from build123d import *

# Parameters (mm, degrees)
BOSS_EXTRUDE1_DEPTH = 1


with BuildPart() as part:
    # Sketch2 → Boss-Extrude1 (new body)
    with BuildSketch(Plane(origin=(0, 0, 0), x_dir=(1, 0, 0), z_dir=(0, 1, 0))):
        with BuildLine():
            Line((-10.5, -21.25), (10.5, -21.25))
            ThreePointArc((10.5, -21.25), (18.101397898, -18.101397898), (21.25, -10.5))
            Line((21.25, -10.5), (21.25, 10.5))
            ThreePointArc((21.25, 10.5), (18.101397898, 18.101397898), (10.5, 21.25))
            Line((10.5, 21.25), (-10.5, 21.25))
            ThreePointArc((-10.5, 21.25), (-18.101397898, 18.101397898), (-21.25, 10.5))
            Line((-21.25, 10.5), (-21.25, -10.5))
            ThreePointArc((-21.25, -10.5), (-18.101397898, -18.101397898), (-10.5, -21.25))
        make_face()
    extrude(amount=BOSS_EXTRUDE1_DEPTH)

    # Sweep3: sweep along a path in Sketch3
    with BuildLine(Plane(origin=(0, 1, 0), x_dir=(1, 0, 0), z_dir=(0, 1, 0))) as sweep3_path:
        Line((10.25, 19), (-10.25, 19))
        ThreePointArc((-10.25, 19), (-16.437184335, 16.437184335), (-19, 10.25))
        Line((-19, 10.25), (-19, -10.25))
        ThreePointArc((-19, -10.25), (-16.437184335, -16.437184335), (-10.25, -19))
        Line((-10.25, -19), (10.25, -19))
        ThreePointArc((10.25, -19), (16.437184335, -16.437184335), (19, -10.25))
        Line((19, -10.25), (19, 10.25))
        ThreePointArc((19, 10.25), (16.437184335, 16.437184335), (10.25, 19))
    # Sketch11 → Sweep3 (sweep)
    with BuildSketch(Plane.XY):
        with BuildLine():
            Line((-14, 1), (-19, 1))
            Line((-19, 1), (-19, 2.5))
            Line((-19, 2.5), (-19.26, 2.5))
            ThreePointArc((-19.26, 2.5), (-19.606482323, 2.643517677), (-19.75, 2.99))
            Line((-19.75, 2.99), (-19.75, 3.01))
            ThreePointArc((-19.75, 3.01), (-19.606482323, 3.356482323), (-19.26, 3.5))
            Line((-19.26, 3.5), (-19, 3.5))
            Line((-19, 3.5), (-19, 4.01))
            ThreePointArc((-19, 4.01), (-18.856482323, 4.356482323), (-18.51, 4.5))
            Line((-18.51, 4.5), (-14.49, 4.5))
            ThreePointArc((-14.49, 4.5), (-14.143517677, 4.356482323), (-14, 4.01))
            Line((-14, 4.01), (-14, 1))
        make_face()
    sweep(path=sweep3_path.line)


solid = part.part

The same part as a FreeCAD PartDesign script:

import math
import FreeCAD as App
import Part
import Sketcher

V = App.Vector
Q = App.Units.Quantity

doc = App.newDocument("Part")
body = doc.addObject("PartDesign::Body", "Body")

# Sketch on XZ plane
sketch1 = doc.addObject("Sketcher::SketchObject", "Sketch")
body.addObject(sketch1)
sketch1.AttachmentSupport = (doc.XZ_Plane, [""])
sketch1.MapMode = "FlatFace"
sketch1.addGeometry([
    Part.LineSegment(V(-10, 21, 0), V(10, 21, 0)),  # 0
    Part.ArcOfCircle(Part.Circle(V(11, 11, 0), V(0, 0, 1), 11), math.radians(0), math.radians(90)),  # 1
    Part.LineSegment(V(21, 10, 0), V(21, -10, 0)),  # 2
    Part.ArcOfCircle(Part.Circle(V(11, -11, 0), V(0, 0, 1), 11), math.radians(-90), math.radians(0)),  # 3
    Part.LineSegment(V(10, -21, 0), V(-10, -21, 0)),  # 4
    Part.ArcOfCircle(Part.Circle(V(-11, -11, 0), V(0, 0, 1), 11), math.radians(180), math.radians(270)),  # 5
    Part.LineSegment(V(-21, -10, 0), V(-21, 10, 0)),  # 6
    Part.ArcOfCircle(Part.Circle(V(-11, 11, 0), V(0, 0, 1), 11), math.radians(90), math.radians(180)),  # 7
], False)
sketch1.addConstraint([
    Sketcher.Constraint("Tangent", 0, 2, 1, 2),
    Sketcher.Constraint("Tangent", 1, 1, 2, 1),
    Sketcher.Constraint("Tangent", 2, 2, 3, 2),
    Sketcher.Constraint("Tangent", 3, 1, 4, 1),
    Sketcher.Constraint("Tangent", 4, 2, 5, 2),
    Sketcher.Constraint("Tangent", 5, 1, 6, 1),
    Sketcher.Constraint("Tangent", 6, 2, 7, 2),
    Sketcher.Constraint("Tangent", 7, 1, 0, 1),
    Sketcher.Constraint("Horizontal", 0),
    Sketcher.Constraint("Vertical", 2),
    Sketcher.Constraint("Horizontal", 4),
    Sketcher.Constraint("Vertical", 6),
    Sketcher.Constraint("Equal", 1, 3),
    Sketcher.Constraint("Equal", 3, 5),
    Sketcher.Constraint("Equal", 5, 7),
    Sketcher.Constraint("Symmetric", 1, 3, 5, 3, -1, 1),
    Sketcher.Constraint("Equal", 4, 2),
    Sketcher.Constraint("DistanceX", 0, 1, 0, 2, Q("21 mm")),
    Sketcher.Constraint("Radius", 1, Q("10.75 mm")),
])
pad1 = doc.addObject("PartDesign::Pad", "Pad")
body.addObject(pad1)
pad1.Profile = sketch1
pad1.Length = 1
pad1.Reversed = True

# Sketch on XY plane
sketch2 = doc.addObject("Sketcher::SketchObject", "Sketch001")
body.addObject(sketch2)
sketch2.AttachmentSupport = (doc.XY_Plane, [""])
sketch2.MapMode = "FlatFace"
sketch2.addGeometry([
    Part.LineSegment(V(-19, 1, 0), V(-14, 1, 0)),  # 0
    Part.LineSegment(V(-14, 1, 0), V(-14, 4.01, 0)),  # 1
    Part.ArcOfCircle(Part.Circle(V(-14.49, 4.01, 0), V(0, 0, 1), 0.49), math.radians(0), math.radians(90)),  # 2
    Part.LineSegment(V(-14.49, 4.5, 0), V(-18.51, 4.5, 0)),  # 3
    Part.ArcOfCircle(Part.Circle(V(-18.51, 4.01, 0), V(0, 0, 1), 0.49), math.radians(90), math.radians(180)),  # 4
    Part.LineSegment(V(-19, 4.01, 0), V(-19, 3.5, 0)),  # 5
    Part.LineSegment(V(-19, 3.5, 0), V(-19.26, 3.5, 0)),  # 6
    Part.ArcOfCircle(Part.Circle(V(-19.26, 3.01, 0), V(0, 0, 1), 0.49), math.radians(90), math.radians(180)),  # 7
    Part.LineSegment(V(-19.75, 3.01, 0), V(-19.75, 2.99, 0)),  # 8
    Part.ArcOfCircle(Part.Circle(V(-19.26, 2.99, 0), V(0, 0, 1), 0.49), math.radians(180), math.radians(270)),  # 9
    Part.LineSegment(V(-19.26, 2.5, 0), V(-19, 2.5, 0)),  # 10
    Part.LineSegment(V(-19, 2.5, 0), V(-19, 1, 0)),  # 11
], False)
sketch2.addConstraint([
    Sketcher.Constraint("Coincident", 0, 2, 1, 1),
    Sketcher.Constraint("Tangent", 1, 2, 2, 1),
    Sketcher.Constraint("Tangent", 2, 2, 3, 1),
    Sketcher.Constraint("Tangent", 3, 2, 4, 1),
    Sketcher.Constraint("Tangent", 4, 2, 5, 1),
    Sketcher.Constraint("Coincident", 5, 2, 6, 1),
    Sketcher.Constraint("Tangent", 6, 2, 7, 1),
    Sketcher.Constraint("Tangent", 7, 2, 8, 1),
    Sketcher.Constraint("Tangent", 8, 2, 9, 1),
    Sketcher.Constraint("Tangent", 9, 2, 10, 1),
    Sketcher.Constraint("Coincident", 10, 2, 11, 1),
    Sketcher.Constraint("Coincident", 11, 2, 0, 1),
    Sketcher.Constraint("Horizontal", 0),
    Sketcher.Constraint("Vertical", 1),
    Sketcher.Constraint("Horizontal", 3),
    Sketcher.Constraint("Vertical", 5),
    Sketcher.Constraint("Horizontal", 6),
    Sketcher.Constraint("Vertical", 8),
    Sketcher.Constraint("Horizontal", 10),
    Sketcher.Constraint("Vertical", 11),
    Sketcher.Constraint("Equal", 2, 4),
    Sketcher.Constraint("Equal", 4, 7),
    Sketcher.Constraint("Equal", 7, 9),
    Sketcher.Constraint("Vertical", 5, 2, 10, 2),
    Sketcher.Constraint("DistanceX", 0, 1, 0, 2, Q("5 mm")),
    Sketcher.Constraint("Radius", 2, Q("0.49 mm")),
    Sketcher.Constraint("DistanceY", 11, 2, 11, 1, Q("1.5 mm")),
    Sketcher.Constraint("DistanceX", 0, 2, -1, 1, Q("14 mm")),
    Sketcher.Constraint("DistanceY", -1, 1, 0, 2, Q("1 mm")),
    Sketcher.Constraint("DistanceY", 7, 3, 4, 3, Q("1 mm")),
    Sketcher.Constraint("DistanceY", 9, 2, 6, 2, Q("1 mm")),
    Sketcher.Constraint("DistanceX", 6, 2, 6, 1, Q("0.26 mm")),
])

# Sketch on XZ plane
sketch3 = doc.addObject("Sketcher::SketchObject", "Sketch002")
body.addObject(sketch3)
sketch3.AttachmentSupport = (doc.XZ_Plane, [""])
sketch3.MapMode = "FlatFace"
sketch3.AttachmentOffset = App.Placement(V(0, 0, -1), App.Rotation())
sketch3.addGeometry([
    Part.LineSegment(V(10, -19, 0), V(-10, -19, 0)),  # 0
    Part.ArcOfCircle(Part.Circle(V(-10, -10, 0), V(0, 0, 1), 9), math.radians(-180), math.radians(-90)),  # 1
    Part.LineSegment(V(-19, -10, 0), V(-19, 10, 0)),  # 2
    Part.ArcOfCircle(Part.Circle(V(-10, 10, 0), V(0, 0, 1), 9), math.radians(90), math.radians(180)),  # 3
    Part.LineSegment(V(-10, 19, 0), V(10, 19, 0)),  # 4
    Part.ArcOfCircle(Part.Circle(V(10, 10, 0), V(0, 0, 1), 9), math.radians(0), math.radians(90)),  # 5
    Part.LineSegment(V(19, 10, 0), V(19, -10, 0)),  # 6
    Part.ArcOfCircle(Part.Circle(V(10, -10, 0), V(0, 0, 1), 9), math.radians(-90), math.radians(0)),  # 7
], False)
sketch3.addConstraint([
    Sketcher.Constraint("Tangent", 0, 2, 1, 2),
    Sketcher.Constraint("Tangent", 1, 1, 2, 1),
    Sketcher.Constraint("Tangent", 2, 2, 3, 2),
    Sketcher.Constraint("Tangent", 3, 1, 4, 1),
    Sketcher.Constraint("Tangent", 4, 2, 5, 2),
    Sketcher.Constraint("Tangent", 5, 1, 6, 1),
    Sketcher.Constraint("Tangent", 6, 2, 7, 2),
    Sketcher.Constraint("Tangent", 7, 1, 0, 1),
    Sketcher.Constraint("Horizontal", 0),
    Sketcher.Constraint("Vertical", 2),
    Sketcher.Constraint("Horizontal", 4),
    Sketcher.Constraint("Vertical", 6),
    Sketcher.Constraint("Equal", 1, 3),
    Sketcher.Constraint("Equal", 3, 5),
    Sketcher.Constraint("Equal", 5, 7),
    Sketcher.Constraint("Symmetric", 1, 3, 5, 3, -1, 1),
    Sketcher.Constraint("Equal", 4, 2),
    Sketcher.Constraint("Radius", 1, Q("8.75 mm")),
    Sketcher.Constraint("DistanceX", 0, 2, 0, 1, Q("20.5 mm")),
])
doc.recompute()

additivepipe = doc.addObject("PartDesign::AdditivePipe", "AdditivePipe")
body.addObject(additivepipe)
additivepipe.Profile = sketch2
additivepipe.Spine = (sketch3, ["Edge1", "Edge2", "Edge3", "Edge4", "Edge5", "Edge6", "Edge7", "Edge8"])

doc.recompute()
